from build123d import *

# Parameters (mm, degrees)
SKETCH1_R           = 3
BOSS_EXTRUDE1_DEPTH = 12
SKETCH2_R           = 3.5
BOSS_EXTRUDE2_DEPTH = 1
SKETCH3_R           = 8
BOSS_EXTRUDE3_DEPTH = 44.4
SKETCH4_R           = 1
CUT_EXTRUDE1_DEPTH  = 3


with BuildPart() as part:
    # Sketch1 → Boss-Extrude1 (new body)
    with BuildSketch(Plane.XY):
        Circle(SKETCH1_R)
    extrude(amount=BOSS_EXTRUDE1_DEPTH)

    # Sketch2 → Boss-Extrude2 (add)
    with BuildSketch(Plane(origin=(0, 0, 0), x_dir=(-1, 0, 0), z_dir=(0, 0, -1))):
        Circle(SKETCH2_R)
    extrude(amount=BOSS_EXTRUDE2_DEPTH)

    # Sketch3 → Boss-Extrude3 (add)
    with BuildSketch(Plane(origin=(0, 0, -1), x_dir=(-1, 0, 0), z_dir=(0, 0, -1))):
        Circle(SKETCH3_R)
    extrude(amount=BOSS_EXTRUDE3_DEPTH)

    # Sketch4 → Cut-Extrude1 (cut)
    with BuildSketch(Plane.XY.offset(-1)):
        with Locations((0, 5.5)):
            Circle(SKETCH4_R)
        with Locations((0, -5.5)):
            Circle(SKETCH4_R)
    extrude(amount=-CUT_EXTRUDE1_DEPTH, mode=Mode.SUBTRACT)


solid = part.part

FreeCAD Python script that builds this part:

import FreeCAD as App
import Part
import Sketcher

V = App.Vector

doc = App.newDocument("Part")
body = doc.addObject("PartDesign::Body", "Body")

sketch1 = doc.addObject("Sketcher::SketchObject", "Sketch")
body.addObject(sketch1)
sketch1.AttachmentSupport = (doc.XY_Plane, [""])
sketch1.MapMode = "FlatFace"
sketch1.addGeometry(Part.Circle(V(0, 0, 0), V(0, 0, 1), 3), False)
sketch1.addConstraint([
    Sketcher.Constraint("Coincident", 0, 3, -1, 1),
    Sketcher.Constraint("Diameter", 0, 6.0),
])
pad1 = doc.addObject("PartDesign::Pad", "Pad")
body.addObject(pad1)
pad1.Profile = sketch1
pad1.Length = 12

sketch2 = doc.addObject("Sketcher::SketchObject", "Sketch001")
body.addObject(sketch2)
sketch2.AttachmentSupport = (doc.XY_Plane, [""])
sketch2.MapMode = "FlatFace"
sketch2.addGeometry(Part.Circle(V(0, 0, 0), V(0, 0, 1), 3.5), False)
sketch2.addConstraint([
    Sketcher.Constraint("Coincident", 0, 3, -1, 1),
    Sketcher.Constraint("Diameter", 0, 7.0),
])
pad2 = doc.addObject("PartDesign::Pad", "Pad001")
body.addObject(pad2)
pad2.Profile = sketch2
pad2.Length = 1
pad2.Reversed = True

sketch3 = doc.addObject("Sketcher::SketchObject", "Sketch002")
body.addObject(sketch3)
sketch3.AttachmentSupport = (doc.XY_Plane, [""])
sketch3.MapMode = "FlatFace"
sketch3.AttachmentOffset = App.Placement(V(0, 0, -1), App.Rotation())
sketch3.addGeometry(Part.Circle(V(0, 0, 0), V(0, 0, 1), 8), False)
sketch3.addConstraint([
    Sketcher.Constraint("Coincident", 0, 3, -1, 1),
    Sketcher.Constraint("Diameter", 0, 16.0),
])
pad3 = doc.addObject("PartDesign::Pad", "Pad002")
body.addObject(pad3)
pad3.Profile = sketch3
pad3.Length = 44.4
pad3.Reversed = True

sketch4 = doc.addObject("Sketcher::SketchObject", "Sketch003")
body.addObject(sketch4)
sketch4.AttachmentSupport = (doc.XY_Plane, [""])
sketch4.MapMode = "FlatFace"
sketch4.AttachmentOffset = App.Placement(V(0, 0, -1), App.Rotation())
sketch4.addGeometry([
    Part.Circle(V(0, 5.5, 0), V(0, 0, 1), 1),
    Part.Circle(V(0, -5.5, 0), V(0, 0, 1), 1),
], False)
sketch4.addConstraint([
    Sketcher.Constraint("Equal", 0, 1),
    Sketcher.Constraint("Symmetric", 0, 3, 1, 3, -1, 1),
    Sketcher.Constraint("PointOnObject", 0, 3, -2),
    Sketcher.Constraint("Diameter", 0, 2.0),
    Sketcher.Constraint("DistanceY", 1, 3, 0, 3, 11.0),
])
pocket1 = doc.addObject("PartDesign::Pocket", "Pocket")
body.addObject(pocket1)
pocket1.Profile = sketch4
pocket1.Length = 3

doc.recompute()
